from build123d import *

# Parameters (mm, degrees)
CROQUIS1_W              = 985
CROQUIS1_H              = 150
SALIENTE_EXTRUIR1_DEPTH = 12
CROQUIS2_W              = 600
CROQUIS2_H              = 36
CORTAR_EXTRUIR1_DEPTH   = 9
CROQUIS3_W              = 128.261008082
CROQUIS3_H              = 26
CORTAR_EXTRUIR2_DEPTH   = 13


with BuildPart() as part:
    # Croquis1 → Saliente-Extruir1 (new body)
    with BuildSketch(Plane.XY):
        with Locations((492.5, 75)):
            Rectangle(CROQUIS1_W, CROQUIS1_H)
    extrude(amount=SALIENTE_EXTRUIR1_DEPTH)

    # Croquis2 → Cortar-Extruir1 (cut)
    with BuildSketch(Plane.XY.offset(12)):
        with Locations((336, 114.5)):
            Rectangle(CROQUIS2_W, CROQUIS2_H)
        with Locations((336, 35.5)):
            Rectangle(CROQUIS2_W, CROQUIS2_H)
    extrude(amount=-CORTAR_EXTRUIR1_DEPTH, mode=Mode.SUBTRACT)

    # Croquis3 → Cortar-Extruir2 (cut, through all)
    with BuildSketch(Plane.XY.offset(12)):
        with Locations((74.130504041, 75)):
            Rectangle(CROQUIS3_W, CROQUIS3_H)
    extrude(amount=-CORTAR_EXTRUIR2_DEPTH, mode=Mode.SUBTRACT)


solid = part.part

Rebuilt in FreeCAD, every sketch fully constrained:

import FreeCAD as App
import Part
import Sketcher
Q = App.Units.Quantity

doc = App.newDocument("Part")
body = doc.addObject("PartDesign::Body", "Body")

# Sketch on XY plane
sketch1 = doc.addObject("Sketcher::SketchObject", "Sketch")
body.addObject(sketch1)
sketch1.AttachmentSupport = (doc.XY_Plane, [""])
sketch1.MapMode = "FlatFace"
sketch1.addGeometry([
    Part.LineSegment(App.Vector(0, 150, 0), App.Vector(0, 0, 0)),
    Part.LineSegment(App.Vector(0, 0, 0), App.Vector(985, 0, 0)),
    Part.LineSegment(App.Vector(985, 0, 0), App.Vector(985, 150, 0)),
    Part.LineSegment(App.Vector(985, 150, 0), App.Vector(0, 150, 0)),
], False)
sketch1.addConstraint([
    Sketcher.Constraint("Coincident", 0, 2, 1, 1),
    Sketcher.Constraint("Coincident", 1, 2, 2, 1),
    Sketcher.Constraint("Coincident", 2, 2, 3, 1),
    Sketcher.Constraint("Coincident", 3, 2, 0, 1),
    Sketcher.Constraint("Vertical", 0),
    Sketcher.Constraint("Horizontal", 1),
    Sketcher.Constraint("Vertical", 2),
    Sketcher.Constraint("Horizontal", 3),
    Sketcher.Constraint("Coincident", 0, 2, -1, 1),
    Sketcher.Constraint("DistanceX", 1, 1, 1, 2, Q("985 mm")),
    Sketcher.Constraint("DistanceY", 0, 2, 0, 1, Q("150 mm")),
])
pad1 = doc.addObject("PartDesign::Pad", "Pad")
body.addObject(pad1)
pad1.Profile = sketch1
pad1.Length = 12

# Sketch on XY plane
sketch2 = doc.addObject("Sketcher::SketchObject", "Sketch001")
body.addObject(sketch2)
sketch2.AttachmentSupport = (doc.XY_Plane, [""])
sketch2.MapMode = "FlatFace"
sketch2.AttachmentOffset = App.Placement(App.Vector(0, 0, 12), App.Rotation())
sketch2.addGeometry([
    Part.LineSegment(App.Vector(36, 132, 0), App.Vector(36, 96, 0)),  # 0
    Part.LineSegment(App.Vector(36, 96, 0), App.Vector(636, 96, 0)),  # 1
    Part.LineSegment(App.Vector(636, 96, 0), App.Vector(636, 132, 0)),  # 2
    Part.LineSegment(App.Vector(636, 132, 0), App.Vector(36, 132, 0)),  # 3
    Part.LineSegment(App.Vector(36, 54, 0), App.Vector(36, 18, 0)),  # 4
    Part.LineSegment(App.Vector(36, 18, 0), App.Vector(636, 18, 0)),  # 5
    Part.LineSegment(App.Vector(636, 18, 0), App.Vector(636, 54, 0)),  # 6
    Part.LineSegment(App.Vector(636, 54, 0), App.Vector(36, 54, 0)),  # 7
], False)
sketch2.addConstraint([
    Sketcher.Constraint("Coincident", 0, 2, 1, 1),
    Sketcher.Constraint("Coincident", 1, 2, 2, 1),
    Sketcher.Constraint("Coincident", 2, 2, 3, 1),
    Sketcher.Constraint("Coincident", 3, 2, 0, 1),
    Sketcher.Constraint("Coincident", 4, 2, 5, 1),
    Sketcher.Constraint("Coincident", 5, 2, 6, 1),
    Sketcher.Constraint("Coincident", 6, 2, 7, 1),
    Sketcher.Constraint("Coincident", 7, 2, 4, 1),
    Sketcher.Constraint("Vertical", 0),
    Sketcher.Constraint("Horizontal", 1),
    Sketcher.Constraint("Vertical", 2),
    Sketcher.Constraint("Horizontal", 3),
    Sketcher.Constraint("Vertical", 4),
    Sketcher.Constraint("Horizontal", 5),
    Sketcher.Constraint("Vertical", 6),
    Sketcher.Constraint("Horizontal", 7),
    Sketcher.Constraint("Vertical", 3, 2, 4, 2),
    Sketcher.Constraint("Vertical", 2, 2, 5, 2),
    Sketcher.Constraint("Equal", 2, 4),
    Sketcher.Constraint("DistanceX", 1, 1, 1, 2, Q("600 mm")),
    Sketcher.Constraint("DistanceY", 0, 2, 0, 1, Q("36 mm")),
    Sketcher.Constraint("DistanceX", -1, 1, 0, 2, Q("36 mm")),
    Sketcher.Constraint("DistanceY", 4, 2, 0, 2, Q("79 mm")),
    Sketcher.Constraint("DistanceY", -1, 1, 0, 2, Q("96.5 mm")),
])
pocket1 = doc.addObject("PartDesign::Pocket", "Pocket")
body.addObject(pocket1)
pocket1.Profile = sketch2
pocket1.Length = 9

# Sketch on XY plane
sketch3 = doc.addObject("Sketcher::SketchObject", "Sketch002")
body.addObject(sketch3)
sketch3.AttachmentSupport = (doc.XY_Plane, [""])
sketch3.MapMode = "FlatFace"
sketch3.AttachmentOffset = App.Placement(App.Vector(0, 0, 12), App.Rotation())
sketch3.addGeometry([
    Part.LineSegment(App.Vector(10, 88, 0), App.Vector(10, 62, 0)),
    Part.LineSegment(App.Vector(10, 62, 0), App.Vector(138, 62, 0)),
    Part.LineSegment(App.Vector(138, 62, 0), App.Vector(138, 88, 0)),
    Part.LineSegment(App.Vector(138, 88, 0), App.Vector(10, 88, 0)),
], False)
sketch3.addConstraint([
    Sketcher.Constraint("Coincident", 0, 2, 1, 1),
    Sketcher.Constraint("Coincident", 1, 2, 2, 1),
    Sketcher.Constraint("Coincident", 2, 2, 3, 1),
    Sketcher.Constraint("Coincident", 3, 2, 0, 1),
    Sketcher.Constraint("Vertical", 0),
    Sketcher.Constraint("Horizontal", 1),
    Sketcher.Constraint("Vertical", 2),
    Sketcher.Constraint("Horizontal", 3),
    Sketcher.Constraint("DistanceY", 0, 2, 0, 1, Q("26 mm")),
    Sketcher.Constraint("DistanceX", -1, 1, 0, 2, Q("10 mm")),
    Sketcher.Constraint("DistanceY", -1, 1, 0, 2, Q("62 mm")),
    Sketcher.Constraint("DistanceX", 1, 1, 1, 2, Q("128.261008 mm")),
])
pocket2 = doc.addObject("PartDesign::Pocket", "Pocket001")
body.addObject(pocket2)
pocket2.Profile = sketch3
pocket2.Type = "ThroughAll"

doc.recompute()
